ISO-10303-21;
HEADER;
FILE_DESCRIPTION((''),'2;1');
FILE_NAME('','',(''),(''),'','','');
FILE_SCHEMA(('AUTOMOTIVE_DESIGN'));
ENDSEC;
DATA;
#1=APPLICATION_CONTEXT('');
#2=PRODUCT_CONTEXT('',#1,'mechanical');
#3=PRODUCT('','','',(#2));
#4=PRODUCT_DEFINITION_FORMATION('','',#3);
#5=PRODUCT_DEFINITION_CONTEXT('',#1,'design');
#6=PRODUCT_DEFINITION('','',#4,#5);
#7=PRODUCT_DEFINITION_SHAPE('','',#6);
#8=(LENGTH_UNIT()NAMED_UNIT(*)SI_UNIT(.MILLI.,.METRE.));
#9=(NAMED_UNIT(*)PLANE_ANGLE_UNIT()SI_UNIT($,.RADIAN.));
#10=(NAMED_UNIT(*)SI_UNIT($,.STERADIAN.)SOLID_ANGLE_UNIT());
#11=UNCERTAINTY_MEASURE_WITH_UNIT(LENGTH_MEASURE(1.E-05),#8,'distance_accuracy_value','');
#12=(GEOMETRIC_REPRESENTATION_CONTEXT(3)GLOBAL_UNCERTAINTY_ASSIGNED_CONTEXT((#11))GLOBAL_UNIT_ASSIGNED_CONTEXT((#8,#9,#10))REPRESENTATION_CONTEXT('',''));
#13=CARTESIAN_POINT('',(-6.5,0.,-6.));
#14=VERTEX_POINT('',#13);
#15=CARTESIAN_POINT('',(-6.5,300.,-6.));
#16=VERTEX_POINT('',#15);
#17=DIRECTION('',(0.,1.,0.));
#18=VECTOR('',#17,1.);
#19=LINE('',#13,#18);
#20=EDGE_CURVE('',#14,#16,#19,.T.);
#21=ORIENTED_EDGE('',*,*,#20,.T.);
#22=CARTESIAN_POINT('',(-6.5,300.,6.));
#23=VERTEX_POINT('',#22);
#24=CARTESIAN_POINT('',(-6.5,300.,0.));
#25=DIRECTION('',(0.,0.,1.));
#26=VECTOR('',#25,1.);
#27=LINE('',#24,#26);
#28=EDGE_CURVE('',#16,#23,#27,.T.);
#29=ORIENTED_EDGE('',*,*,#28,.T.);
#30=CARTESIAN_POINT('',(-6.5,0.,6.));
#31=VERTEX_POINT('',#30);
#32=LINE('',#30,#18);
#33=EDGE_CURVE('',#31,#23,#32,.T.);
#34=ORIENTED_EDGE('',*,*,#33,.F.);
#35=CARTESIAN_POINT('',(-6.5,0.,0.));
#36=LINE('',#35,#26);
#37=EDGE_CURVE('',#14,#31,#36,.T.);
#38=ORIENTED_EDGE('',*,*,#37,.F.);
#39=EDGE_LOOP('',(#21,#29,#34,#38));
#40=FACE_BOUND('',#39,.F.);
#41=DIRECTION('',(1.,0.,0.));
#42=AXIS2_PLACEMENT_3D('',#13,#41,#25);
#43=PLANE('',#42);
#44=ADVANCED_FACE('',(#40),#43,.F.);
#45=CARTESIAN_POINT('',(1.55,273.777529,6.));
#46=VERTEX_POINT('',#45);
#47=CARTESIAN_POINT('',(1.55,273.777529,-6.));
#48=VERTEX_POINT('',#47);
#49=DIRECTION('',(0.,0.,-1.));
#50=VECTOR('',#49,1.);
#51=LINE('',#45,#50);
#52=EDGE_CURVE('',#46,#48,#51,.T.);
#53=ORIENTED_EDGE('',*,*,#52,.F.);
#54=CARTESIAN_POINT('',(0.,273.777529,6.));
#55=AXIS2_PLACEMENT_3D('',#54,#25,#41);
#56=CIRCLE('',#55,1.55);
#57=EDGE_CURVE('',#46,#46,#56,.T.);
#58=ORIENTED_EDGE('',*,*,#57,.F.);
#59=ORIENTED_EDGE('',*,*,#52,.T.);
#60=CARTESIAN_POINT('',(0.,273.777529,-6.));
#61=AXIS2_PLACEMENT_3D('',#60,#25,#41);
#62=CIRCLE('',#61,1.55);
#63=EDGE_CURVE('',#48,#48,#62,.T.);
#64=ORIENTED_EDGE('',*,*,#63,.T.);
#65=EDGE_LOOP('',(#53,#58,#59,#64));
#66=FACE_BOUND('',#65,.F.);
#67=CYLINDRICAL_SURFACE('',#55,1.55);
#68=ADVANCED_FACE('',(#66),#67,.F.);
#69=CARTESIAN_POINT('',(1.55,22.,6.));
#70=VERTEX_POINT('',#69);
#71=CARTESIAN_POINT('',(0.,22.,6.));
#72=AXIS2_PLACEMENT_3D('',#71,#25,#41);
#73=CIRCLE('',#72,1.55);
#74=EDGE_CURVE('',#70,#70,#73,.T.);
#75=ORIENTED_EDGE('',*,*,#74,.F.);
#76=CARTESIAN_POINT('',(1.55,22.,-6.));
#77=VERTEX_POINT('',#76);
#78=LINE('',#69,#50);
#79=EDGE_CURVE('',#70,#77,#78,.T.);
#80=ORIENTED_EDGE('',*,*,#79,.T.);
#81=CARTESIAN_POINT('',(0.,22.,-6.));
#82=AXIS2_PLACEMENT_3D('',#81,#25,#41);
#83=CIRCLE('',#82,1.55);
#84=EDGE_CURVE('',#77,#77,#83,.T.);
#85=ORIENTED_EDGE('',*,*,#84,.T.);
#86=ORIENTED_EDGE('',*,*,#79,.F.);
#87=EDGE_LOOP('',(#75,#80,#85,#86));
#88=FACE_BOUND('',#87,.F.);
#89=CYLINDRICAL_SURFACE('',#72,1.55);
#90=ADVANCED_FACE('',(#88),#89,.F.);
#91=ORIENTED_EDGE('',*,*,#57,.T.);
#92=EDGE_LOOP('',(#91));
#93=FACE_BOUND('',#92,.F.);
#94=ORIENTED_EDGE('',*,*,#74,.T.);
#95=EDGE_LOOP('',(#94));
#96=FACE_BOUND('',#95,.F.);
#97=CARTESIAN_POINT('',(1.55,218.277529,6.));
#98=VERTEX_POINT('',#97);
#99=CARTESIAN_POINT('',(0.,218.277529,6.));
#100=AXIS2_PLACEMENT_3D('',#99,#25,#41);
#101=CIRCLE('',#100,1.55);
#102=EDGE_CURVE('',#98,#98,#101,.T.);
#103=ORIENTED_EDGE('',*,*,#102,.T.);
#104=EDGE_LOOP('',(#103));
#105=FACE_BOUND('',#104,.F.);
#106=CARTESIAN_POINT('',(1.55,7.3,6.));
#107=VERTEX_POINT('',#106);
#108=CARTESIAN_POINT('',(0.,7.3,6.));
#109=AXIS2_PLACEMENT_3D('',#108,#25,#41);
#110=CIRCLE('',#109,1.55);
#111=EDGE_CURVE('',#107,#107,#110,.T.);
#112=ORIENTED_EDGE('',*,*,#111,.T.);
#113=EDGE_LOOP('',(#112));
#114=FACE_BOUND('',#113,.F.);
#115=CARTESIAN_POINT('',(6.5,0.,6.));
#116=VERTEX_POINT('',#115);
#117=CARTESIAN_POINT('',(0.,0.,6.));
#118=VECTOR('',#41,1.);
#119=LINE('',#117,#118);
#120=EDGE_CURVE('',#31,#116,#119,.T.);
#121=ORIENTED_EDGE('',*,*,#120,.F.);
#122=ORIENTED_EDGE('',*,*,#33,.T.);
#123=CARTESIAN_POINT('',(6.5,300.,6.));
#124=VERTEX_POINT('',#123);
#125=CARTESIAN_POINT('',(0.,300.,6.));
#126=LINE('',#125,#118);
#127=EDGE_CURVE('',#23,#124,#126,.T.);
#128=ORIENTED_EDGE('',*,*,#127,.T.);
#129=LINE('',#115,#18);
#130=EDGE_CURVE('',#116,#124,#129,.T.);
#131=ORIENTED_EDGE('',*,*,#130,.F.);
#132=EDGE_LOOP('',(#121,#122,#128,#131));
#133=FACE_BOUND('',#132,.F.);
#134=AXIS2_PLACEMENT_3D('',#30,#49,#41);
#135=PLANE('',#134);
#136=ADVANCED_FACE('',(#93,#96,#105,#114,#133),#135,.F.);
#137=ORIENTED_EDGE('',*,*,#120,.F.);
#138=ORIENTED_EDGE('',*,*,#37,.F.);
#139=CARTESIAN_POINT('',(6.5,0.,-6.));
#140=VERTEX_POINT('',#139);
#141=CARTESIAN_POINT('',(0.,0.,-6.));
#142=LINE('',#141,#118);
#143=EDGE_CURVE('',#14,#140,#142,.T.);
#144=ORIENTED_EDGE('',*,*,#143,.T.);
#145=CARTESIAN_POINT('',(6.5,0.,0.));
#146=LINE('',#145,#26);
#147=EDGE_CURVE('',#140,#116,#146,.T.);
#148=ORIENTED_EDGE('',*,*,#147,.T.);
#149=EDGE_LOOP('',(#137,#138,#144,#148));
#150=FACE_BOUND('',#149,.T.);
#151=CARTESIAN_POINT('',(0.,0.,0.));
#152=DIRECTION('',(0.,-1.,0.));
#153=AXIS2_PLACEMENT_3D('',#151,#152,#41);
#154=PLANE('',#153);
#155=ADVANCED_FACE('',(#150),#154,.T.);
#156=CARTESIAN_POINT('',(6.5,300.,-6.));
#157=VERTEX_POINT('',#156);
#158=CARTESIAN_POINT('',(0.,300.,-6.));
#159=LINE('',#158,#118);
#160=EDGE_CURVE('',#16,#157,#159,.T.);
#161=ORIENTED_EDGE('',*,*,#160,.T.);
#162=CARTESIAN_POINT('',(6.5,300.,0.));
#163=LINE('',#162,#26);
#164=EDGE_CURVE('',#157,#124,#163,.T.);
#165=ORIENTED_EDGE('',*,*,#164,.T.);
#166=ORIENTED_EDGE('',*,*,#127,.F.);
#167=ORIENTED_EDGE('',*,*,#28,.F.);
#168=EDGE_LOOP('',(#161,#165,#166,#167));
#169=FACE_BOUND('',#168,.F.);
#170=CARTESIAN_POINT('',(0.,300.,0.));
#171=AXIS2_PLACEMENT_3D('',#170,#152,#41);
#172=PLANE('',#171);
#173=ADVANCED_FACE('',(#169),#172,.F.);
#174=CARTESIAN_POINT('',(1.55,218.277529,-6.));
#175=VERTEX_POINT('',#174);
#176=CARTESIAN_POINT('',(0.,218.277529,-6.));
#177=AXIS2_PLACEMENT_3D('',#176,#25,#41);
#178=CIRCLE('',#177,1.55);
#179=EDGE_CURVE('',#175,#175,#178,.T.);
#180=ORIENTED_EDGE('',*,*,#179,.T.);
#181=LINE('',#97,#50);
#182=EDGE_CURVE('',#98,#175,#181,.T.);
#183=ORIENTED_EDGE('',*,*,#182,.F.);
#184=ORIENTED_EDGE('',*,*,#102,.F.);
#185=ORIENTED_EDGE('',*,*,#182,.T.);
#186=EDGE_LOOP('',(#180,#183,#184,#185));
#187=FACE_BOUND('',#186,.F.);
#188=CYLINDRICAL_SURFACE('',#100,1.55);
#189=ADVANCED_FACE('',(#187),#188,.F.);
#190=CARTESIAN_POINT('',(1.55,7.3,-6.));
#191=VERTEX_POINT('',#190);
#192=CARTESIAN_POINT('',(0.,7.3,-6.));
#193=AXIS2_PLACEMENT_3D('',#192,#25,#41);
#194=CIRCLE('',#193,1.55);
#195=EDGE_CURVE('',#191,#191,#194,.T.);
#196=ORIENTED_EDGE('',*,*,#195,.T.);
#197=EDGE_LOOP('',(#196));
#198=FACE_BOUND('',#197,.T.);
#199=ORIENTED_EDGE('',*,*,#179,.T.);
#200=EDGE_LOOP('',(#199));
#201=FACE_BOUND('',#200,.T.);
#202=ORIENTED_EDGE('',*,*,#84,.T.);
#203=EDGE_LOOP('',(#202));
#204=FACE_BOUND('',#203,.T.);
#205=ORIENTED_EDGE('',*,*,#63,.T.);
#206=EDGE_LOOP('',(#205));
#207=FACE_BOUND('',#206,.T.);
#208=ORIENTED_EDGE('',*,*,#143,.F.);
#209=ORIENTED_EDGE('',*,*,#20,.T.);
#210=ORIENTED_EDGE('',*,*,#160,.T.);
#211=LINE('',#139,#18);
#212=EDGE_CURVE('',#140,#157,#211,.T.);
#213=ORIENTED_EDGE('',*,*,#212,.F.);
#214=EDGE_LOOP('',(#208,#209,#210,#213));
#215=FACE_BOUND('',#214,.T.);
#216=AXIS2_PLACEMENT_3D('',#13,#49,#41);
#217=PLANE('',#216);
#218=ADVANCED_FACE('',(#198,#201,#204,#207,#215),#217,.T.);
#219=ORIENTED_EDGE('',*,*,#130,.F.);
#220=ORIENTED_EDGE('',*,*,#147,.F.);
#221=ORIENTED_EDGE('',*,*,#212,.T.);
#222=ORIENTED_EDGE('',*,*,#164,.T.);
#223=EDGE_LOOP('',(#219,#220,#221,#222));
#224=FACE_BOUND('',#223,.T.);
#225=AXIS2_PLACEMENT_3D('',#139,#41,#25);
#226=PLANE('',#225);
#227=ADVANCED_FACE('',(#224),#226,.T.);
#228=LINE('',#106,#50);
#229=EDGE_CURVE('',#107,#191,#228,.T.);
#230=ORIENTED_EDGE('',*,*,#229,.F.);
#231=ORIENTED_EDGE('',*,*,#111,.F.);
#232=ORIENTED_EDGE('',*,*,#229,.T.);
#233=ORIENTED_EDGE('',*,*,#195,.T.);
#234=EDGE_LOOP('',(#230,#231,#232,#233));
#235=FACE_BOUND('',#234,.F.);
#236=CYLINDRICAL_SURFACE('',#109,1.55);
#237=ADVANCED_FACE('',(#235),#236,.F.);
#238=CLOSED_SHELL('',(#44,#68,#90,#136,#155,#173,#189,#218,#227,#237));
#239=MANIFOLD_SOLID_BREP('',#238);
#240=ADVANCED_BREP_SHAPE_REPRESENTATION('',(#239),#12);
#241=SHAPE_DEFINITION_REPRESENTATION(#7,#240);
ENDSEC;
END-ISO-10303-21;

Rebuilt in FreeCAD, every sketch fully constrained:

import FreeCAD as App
import Part
import Sketcher
from FreeCAD import Vector
Q = App.Units.Quantity


def add_polygon(sketch, points):
    """Adds a closed chain of lines whose ends are joined by coincident constraints."""
    first, n = sketch.GeometryCount, len(points)
    for a, b in zip(points, points[1:] + points[:1]):
        sketch.addGeometry(Part.LineSegment(App.Vector(*a, 0), App.Vector(*b, 0)), False)
    for i in range(n):
        sketch.addConstraint(Sketcher.Constraint("Coincident", first + i, 2, first + (i + 1) % n, 1))

doc = App.newDocument("Part")
body = doc.addObject("PartDesign::Body", "Body")

sketch1 = body.newObject("Sketcher::SketchObject", "Sketch")
sketch1.AttachmentSupport = (doc.getObject("XZ_Plane"), [""])
sketch1.MapMode = "FlatFace"
add_polygon(sketch1, [(-6, 6), (-6, -6), (6, -6), (6, 6)])
sketch1.addConstraint(Sketcher.Constraint("Vertical", 0))
sketch1.addConstraint(Sketcher.Constraint("Horizontal", 1))
sketch1.addConstraint(Sketcher.Constraint("Vertical", 2))
sketch1.addConstraint(Sketcher.Constraint("Horizontal", 3))
sketch1.addConstraint(Sketcher.Constraint("Symmetric", 0, 2, 2, 2, -1, 1))
sketch1.addConstraint(Sketcher.Constraint("DistanceX", 1, 1, 1, 2, Q("13 mm")))
sketch1.addConstraint(Sketcher.Constraint("DistanceY", 0, 2, 0, 1, Q("12 mm")))
pad1 = body.newObject("PartDesign::Pad", "Pad")
pad1.Profile = sketch1
pad1.Length = 300
pad1.Reversed = True

sketch2 = body.newObject("Sketcher::SketchObject", "Sketch001")
sketch2.AttachmentSupport = (doc.getObject("XY_Plane"), [""])
sketch2.MapMode = "FlatFace"
sketch2.AttachmentOffset = App.Placement(Vector(0, 0, 6), App.Rotation())
sketch2.addGeometry(Part.Circle(Vector(0, 7.3, 0), Vector(0, 0, 1), 1.6), False)
sketch2.addGeometry(Part.Circle(Vector(0, 22, 0), Vector(0, 0, 1), 1.6), False)
sketch2.addConstraint(Sketcher.Constraint("Equal", 0, 1))
sketch2.addConstraint(Sketcher.Constraint("PointOnObject", 0, 3, -2))
sketch2.addConstraint(Sketcher.Constraint("PointOnObject", 1, 3, -2))
sketch2.addConstraint(Sketcher.Constraint("Diameter", 0, Q("3.1 mm")))
sketch2.addConstraint(Sketcher.Constraint("DistanceY", -1, 1, 1, 3, Q("22 mm")))
sketch2.addConstraint(Sketcher.Constraint("DistanceY", -1, 1, 0, 3, Q("7.3 mm")))
pocket1 = body.newObject("PartDesign::Pocket", "Pocket")
pocket1.Profile = sketch2
pocket1.Type = "ThroughAll"

sketch3 = body.newObject("Sketcher::SketchObject", "Sketch002")
sketch3.AttachmentSupport = (doc.getObject("XY_Plane"), [""])
sketch3.MapMode = "FlatFace"
sketch3.AttachmentOffset = App.Placement(Vector(0, 0, 6), App.Rotation())
sketch3.addGeometry(Part.Circle(Vector(0, 273.8, 0), Vector(0, 0, 1), 1.6), False)
sketch3.addGeometry(Part.Circle(Vector(0, 218.3, 0), Vector(0, 0, 1), 1.6), False)
sketch3.addConstraint(Sketcher.Constraint("Equal", 0, 1))
sketch3.addConstraint(Sketcher.Constraint("PointOnObject", 0, 3, -2))
sketch3.addConstraint(Sketcher.Constraint("PointOnObject", 1, 3, -2))
sketch3.addConstraint(Sketcher.Constraint("Diameter", 0, Q("3.1 mm")))
sketch3.addConstraint(Sketcher.Constraint("DistanceY", 1, 3, 0, 3, Q("55.5 mm")))
sketch3.addConstraint(Sketcher.Constraint("DistanceY", -1, 1, 0, 3, Q("273.777529 mm")))
pocket2 = body.newObject("PartDesign::Pocket", "Pocket001")
pocket2.Profile = sketch3
pocket2.Length = 25

doc.recompute()
